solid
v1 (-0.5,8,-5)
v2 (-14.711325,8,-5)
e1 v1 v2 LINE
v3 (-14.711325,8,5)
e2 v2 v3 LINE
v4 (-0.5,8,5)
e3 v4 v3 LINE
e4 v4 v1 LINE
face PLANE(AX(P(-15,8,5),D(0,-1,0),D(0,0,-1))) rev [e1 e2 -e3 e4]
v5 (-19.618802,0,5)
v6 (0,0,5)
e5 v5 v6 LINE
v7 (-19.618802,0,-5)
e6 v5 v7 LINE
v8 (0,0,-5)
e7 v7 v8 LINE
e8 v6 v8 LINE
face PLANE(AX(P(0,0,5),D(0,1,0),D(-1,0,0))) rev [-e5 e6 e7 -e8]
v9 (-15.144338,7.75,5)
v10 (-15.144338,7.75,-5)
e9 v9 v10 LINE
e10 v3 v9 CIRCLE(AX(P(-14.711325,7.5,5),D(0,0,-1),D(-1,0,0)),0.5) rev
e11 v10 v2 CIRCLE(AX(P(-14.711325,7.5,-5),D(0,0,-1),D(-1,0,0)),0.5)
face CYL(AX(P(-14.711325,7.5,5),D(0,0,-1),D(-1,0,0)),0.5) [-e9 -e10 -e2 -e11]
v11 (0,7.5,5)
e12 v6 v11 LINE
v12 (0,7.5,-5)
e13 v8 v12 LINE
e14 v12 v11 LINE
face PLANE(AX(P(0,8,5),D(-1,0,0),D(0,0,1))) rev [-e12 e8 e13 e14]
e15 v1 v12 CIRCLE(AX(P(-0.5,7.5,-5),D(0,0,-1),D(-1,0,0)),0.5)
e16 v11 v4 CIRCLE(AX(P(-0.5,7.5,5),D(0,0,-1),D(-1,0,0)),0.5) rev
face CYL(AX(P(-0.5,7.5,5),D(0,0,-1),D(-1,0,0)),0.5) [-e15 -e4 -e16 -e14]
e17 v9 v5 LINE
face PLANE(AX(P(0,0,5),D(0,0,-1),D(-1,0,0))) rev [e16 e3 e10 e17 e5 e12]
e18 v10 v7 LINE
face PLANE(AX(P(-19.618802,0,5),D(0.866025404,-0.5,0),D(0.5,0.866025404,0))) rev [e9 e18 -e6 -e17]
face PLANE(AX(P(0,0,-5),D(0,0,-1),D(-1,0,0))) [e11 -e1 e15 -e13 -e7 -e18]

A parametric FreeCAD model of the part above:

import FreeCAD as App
import Part
import Sketcher
Q = App.Units.Quantity


def edges_at(feature, points):
    """Names of the edges that pass closest to the given points."""
    edges = feature.Shape.Edges
    near = lambda p: min(range(len(edges)), key=lambda i: edges[i].distToShape(Part.Vertex(*p))[0])
    return sorted({f"Edge{near(p) + 1}" for p in points})

doc = App.newDocument("Part")
body = doc.addObject("PartDesign::Body", "Body")

# Sketch on XY plane
sketch1 = doc.addObject("Sketcher::SketchObject", "Sketch")
body.addObject(sketch1)
sketch1.AttachmentSupport = (doc.XY_Plane, [""])
sketch1.MapMode = "FlatFace"
sketch1.addGeometry(Part.LineSegment(App.Vector(0, 8, 0), App.Vector(-15, 8, 0)), False)
sketch1.addGeometry(Part.LineSegment(App.Vector(-15, 8, 0), App.Vector(-20, 0, 0)), False)
sketch1.addGeometry(Part.LineSegment(App.Vector(-20, 0, 0), App.Vector(0, 0, 0)), False)
sketch1.addGeometry(Part.LineSegment(App.Vector(0, 0, 0), App.Vector(0, 8, 0)), False)
sketch1.addConstraint(Sketcher.Constraint("Coincident", 0, 2, 1, 1))
sketch1.addConstraint(Sketcher.Constraint("Coincident", 1, 2, 2, 1))
sketch1.addConstraint(Sketcher.Constraint("Coincident", 2, 2, 3, 1))
sketch1.addConstraint(Sketcher.Constraint("Coincident", 3, 2, 0, 1))
sketch1.addConstraint(Sketcher.Constraint("Horizontal", 0))
sketch1.addConstraint(Sketcher.Constraint("Horizontal", 2))
sketch1.addConstraint(Sketcher.Constraint("Vertical", 3))
sketch1.addConstraint(Sketcher.Constraint("Coincident", 2, 2, -1, 1))
sketch1.addConstraint(Sketcher.Constraint("DistanceX", 0, 2, 0, 1, Q("15 mm")))
sketch1.addConstraint(Sketcher.Constraint("DistanceY", 3, 1, 3, 2, Q("8 mm")))
sketch1.addConstraint(Sketcher.Constraint("Angle", 1, Q("-120 deg")))
pad1 = doc.addObject("PartDesign::Pad", "Pad")
body.addObject(pad1)
pad1.Profile = sketch1
pad1.Length = 10
pad1.Midplane = True
doc.recompute()

fillet = doc.addObject("PartDesign::Fillet", "Fillet")
body.addObject(fillet)
fillet.Base = (pad1, edges_at(pad1, [(-15, 8, 0), (0, 8, 0)]))
fillet.Radius = 0.5

doc.recompute()
